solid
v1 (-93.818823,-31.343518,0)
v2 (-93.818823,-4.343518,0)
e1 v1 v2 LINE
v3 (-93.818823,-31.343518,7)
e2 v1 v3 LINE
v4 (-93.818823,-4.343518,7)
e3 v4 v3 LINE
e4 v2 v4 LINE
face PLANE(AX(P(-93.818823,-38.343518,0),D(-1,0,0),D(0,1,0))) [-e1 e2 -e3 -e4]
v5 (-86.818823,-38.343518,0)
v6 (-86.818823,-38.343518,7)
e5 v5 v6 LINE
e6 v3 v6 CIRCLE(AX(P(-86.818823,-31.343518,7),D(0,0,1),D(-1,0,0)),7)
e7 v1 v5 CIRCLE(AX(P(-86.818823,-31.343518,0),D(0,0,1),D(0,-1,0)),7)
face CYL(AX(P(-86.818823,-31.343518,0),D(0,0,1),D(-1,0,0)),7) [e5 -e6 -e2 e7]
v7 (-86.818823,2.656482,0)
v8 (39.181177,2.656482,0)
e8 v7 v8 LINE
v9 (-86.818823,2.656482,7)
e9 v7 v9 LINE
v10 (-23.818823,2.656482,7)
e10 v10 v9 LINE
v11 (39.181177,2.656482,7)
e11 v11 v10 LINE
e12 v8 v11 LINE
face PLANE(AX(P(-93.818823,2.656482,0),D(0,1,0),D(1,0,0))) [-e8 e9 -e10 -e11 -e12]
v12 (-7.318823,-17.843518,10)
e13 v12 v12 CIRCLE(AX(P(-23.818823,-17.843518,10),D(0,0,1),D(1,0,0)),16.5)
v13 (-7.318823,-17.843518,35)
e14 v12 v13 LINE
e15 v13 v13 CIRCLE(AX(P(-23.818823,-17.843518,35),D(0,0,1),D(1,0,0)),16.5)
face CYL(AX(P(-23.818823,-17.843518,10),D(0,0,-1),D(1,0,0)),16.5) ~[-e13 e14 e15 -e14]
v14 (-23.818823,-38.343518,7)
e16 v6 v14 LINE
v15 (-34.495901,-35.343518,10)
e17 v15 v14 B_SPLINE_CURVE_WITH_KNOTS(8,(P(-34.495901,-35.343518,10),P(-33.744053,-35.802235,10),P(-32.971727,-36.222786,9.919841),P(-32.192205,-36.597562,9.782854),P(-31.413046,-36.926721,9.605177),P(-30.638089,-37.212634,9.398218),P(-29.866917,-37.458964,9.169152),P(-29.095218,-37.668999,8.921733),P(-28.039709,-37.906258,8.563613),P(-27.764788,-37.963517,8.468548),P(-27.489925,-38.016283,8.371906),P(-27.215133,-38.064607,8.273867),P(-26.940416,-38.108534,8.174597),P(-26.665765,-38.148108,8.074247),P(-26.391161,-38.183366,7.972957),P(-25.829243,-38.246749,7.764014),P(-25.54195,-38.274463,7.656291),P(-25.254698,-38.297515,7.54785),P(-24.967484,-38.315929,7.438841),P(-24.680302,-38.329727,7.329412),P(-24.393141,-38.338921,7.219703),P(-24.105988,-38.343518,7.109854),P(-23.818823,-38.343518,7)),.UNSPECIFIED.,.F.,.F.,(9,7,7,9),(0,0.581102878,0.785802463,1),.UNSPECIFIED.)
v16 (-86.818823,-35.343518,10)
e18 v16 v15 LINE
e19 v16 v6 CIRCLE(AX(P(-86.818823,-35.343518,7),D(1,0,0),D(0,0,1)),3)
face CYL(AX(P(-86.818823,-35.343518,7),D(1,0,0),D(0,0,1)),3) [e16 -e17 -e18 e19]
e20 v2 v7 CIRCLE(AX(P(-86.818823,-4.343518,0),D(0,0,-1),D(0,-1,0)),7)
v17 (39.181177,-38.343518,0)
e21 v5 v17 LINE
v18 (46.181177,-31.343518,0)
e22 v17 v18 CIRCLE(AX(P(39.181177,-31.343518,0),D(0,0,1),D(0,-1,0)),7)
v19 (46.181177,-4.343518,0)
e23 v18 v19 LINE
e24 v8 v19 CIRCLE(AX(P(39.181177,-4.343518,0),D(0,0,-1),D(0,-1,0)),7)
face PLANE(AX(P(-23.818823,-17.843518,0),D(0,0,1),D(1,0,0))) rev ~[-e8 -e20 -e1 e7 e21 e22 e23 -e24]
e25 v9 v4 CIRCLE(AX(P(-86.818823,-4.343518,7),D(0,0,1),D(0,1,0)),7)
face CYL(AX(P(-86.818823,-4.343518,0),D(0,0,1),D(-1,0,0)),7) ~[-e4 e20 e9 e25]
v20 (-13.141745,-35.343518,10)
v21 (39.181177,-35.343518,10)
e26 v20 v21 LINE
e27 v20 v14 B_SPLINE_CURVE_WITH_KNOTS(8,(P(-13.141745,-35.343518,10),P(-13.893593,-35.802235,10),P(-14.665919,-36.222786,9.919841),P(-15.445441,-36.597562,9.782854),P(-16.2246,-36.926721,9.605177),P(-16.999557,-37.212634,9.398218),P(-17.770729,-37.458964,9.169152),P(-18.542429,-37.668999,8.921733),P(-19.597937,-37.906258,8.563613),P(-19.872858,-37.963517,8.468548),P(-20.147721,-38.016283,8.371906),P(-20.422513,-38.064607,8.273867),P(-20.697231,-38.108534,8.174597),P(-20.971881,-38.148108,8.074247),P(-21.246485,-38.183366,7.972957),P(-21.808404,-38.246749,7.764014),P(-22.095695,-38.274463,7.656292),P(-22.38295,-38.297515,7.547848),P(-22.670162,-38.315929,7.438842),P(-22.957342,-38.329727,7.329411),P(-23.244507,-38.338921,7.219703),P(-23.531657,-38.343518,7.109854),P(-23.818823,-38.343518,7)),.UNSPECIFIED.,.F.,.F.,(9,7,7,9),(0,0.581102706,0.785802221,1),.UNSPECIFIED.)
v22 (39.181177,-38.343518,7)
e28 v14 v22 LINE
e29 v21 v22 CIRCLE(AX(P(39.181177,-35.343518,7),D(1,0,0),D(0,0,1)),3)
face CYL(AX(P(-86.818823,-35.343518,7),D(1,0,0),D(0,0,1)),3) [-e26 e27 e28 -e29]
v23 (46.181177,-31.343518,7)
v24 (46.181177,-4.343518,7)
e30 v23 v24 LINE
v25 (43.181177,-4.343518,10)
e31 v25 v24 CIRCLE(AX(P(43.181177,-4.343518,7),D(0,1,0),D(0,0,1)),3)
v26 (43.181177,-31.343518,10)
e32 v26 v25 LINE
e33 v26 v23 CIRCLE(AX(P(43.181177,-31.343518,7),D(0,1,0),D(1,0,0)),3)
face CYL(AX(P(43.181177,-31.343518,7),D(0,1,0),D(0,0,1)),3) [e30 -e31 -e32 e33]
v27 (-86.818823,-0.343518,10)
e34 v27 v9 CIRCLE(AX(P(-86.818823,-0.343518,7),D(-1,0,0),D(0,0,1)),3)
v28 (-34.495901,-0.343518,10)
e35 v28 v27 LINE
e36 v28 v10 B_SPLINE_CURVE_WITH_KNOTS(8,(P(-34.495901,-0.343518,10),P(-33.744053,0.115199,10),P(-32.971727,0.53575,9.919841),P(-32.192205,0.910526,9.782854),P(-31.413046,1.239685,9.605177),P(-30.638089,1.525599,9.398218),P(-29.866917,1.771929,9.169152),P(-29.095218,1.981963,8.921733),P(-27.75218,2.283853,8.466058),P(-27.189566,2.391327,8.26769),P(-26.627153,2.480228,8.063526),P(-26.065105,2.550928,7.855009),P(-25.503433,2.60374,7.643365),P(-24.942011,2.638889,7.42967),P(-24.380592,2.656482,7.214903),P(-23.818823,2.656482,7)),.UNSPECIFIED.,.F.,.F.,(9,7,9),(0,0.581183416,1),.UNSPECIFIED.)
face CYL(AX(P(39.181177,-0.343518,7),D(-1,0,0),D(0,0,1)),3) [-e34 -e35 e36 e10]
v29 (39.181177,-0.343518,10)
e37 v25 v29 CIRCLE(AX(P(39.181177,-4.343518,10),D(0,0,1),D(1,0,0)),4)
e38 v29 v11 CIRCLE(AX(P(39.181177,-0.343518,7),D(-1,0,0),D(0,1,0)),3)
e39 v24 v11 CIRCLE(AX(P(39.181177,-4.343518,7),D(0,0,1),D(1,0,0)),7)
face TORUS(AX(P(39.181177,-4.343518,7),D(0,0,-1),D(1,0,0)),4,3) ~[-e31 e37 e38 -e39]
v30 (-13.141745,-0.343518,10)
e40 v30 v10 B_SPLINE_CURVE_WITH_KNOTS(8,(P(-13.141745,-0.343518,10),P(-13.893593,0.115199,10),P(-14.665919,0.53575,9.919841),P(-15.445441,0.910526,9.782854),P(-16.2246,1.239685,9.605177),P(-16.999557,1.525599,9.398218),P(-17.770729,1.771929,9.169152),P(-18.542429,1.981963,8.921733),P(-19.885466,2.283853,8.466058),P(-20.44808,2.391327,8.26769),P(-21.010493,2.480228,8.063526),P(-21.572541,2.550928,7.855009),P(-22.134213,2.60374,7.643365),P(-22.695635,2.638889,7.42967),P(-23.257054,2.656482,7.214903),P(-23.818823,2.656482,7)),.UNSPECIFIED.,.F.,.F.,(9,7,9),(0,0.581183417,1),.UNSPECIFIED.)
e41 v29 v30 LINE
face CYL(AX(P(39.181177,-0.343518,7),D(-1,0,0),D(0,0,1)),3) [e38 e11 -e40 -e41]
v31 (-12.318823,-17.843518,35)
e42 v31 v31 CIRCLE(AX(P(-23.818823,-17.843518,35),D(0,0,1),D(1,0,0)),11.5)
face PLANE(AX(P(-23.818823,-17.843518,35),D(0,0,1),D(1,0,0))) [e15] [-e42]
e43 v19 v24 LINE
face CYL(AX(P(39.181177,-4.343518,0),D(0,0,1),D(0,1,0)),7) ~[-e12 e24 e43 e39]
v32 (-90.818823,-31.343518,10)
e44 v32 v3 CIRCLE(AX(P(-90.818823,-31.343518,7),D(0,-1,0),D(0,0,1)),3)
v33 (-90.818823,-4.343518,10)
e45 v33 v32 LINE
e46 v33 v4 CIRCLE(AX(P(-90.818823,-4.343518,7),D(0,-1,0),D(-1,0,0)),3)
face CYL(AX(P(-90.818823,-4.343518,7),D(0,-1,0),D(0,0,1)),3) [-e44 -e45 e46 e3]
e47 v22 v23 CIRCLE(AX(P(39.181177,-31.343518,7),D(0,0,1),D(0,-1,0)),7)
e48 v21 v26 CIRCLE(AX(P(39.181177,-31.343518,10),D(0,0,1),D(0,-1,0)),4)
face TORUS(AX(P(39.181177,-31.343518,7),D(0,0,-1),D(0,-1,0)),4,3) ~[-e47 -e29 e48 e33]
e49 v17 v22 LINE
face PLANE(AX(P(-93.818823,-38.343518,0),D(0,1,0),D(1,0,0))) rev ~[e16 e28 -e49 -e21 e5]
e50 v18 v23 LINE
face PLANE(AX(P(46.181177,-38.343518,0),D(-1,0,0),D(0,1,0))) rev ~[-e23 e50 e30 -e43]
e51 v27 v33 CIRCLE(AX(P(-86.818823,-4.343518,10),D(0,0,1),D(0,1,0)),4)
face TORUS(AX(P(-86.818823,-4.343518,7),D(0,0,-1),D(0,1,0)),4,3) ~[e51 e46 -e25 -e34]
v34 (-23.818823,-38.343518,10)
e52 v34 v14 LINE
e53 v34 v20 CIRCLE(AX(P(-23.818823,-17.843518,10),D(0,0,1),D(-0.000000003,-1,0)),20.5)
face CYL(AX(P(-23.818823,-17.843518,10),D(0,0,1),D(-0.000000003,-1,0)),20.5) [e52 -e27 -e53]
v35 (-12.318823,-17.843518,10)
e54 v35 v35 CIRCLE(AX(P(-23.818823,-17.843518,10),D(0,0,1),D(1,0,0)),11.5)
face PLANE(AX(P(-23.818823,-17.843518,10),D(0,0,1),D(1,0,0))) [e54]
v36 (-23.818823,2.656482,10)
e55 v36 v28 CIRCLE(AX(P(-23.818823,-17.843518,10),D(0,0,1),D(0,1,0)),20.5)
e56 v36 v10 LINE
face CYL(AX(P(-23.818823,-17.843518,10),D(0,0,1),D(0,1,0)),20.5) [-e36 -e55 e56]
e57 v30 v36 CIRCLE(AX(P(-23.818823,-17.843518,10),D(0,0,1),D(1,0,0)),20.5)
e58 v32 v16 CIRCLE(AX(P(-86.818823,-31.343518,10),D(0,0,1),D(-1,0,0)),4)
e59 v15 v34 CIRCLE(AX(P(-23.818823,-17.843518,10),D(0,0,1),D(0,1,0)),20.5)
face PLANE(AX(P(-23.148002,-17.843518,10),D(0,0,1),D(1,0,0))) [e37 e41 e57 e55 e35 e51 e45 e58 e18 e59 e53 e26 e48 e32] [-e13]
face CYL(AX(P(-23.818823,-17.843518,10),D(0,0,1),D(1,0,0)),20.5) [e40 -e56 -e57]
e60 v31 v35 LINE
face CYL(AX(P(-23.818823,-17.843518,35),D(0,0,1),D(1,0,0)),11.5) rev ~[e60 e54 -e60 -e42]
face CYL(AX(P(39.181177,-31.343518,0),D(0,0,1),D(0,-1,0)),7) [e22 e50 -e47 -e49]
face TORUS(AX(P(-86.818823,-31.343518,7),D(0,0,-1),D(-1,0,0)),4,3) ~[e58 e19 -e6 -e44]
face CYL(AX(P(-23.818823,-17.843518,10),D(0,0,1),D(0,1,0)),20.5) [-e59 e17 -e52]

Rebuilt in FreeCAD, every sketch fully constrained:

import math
import FreeCAD as App
import Part
import Sketcher
from FreeCAD import Vector


def edges_at(feature, points):
    """Names of the edges that pass closest to the given points."""
    edges = feature.Shape.Edges
    near = lambda p: min(range(len(edges)), key=lambda i: edges[i].distToShape(Part.Vertex(*p))[0])
    return sorted({f"Edge{near(p) + 1}" for p in points})

doc = App.newDocument("Part")
body = doc.addObject("PartDesign::Body", "Body")

sketch1 = doc.addObject("Sketcher::SketchObject", "Sketch")
body.addObject(sketch1)
sketch1.AttachmentSupport = (doc.XY_Plane, [""])
sketch1.MapMode = "FlatFace"
sketch1.addGeometry([
    Part.LineSegment(Vector(-94, 3, 0), Vector(-94, -38, 0)),
    Part.LineSegment(Vector(-94, -38, 0), Vector(46, -38, 0)),
    Part.LineSegment(Vector(46, -38, 0), Vector(46, 3, 0)),
    Part.LineSegment(Vector(46, 3, 0), Vector(-94, 3, 0)),
], False)
sketch1.addConstraint([
    Sketcher.Constraint("Coincident", 0, 2, 1, 1),
    Sketcher.Constraint("Coincident", 1, 2, 2, 1),
    Sketcher.Constraint("Coincident", 2, 2, 3, 1),
    Sketcher.Constraint("Coincident", 3, 2, 0, 1),
    Sketcher.Constraint("Vertical", 0),
    Sketcher.Constraint("Horizontal", 1),
    Sketcher.Constraint("Vertical", 2),
    Sketcher.Constraint("Horizontal", 3),
    Sketcher.Constraint("DistanceX", 1, 1, 1, 2, 140.0),
    Sketcher.Constraint("DistanceY", 0, 2, 0, 1, 41.0),
    Sketcher.Constraint("DistanceX", 0, 2, -1, 1, 93.818823),
    Sketcher.Constraint("DistanceY", 0, 2, -1, 1, 38.343518),
])
pad1 = doc.addObject("PartDesign::Pad", "Pad")
body.addObject(pad1)
pad1.Profile = sketch1
pad1.Length = 10

sketch2 = doc.addObject("Sketcher::SketchObject", "Sketch001")
body.addObject(sketch2)
sketch2.AttachmentSupport = (doc.XY_Plane, [""])
sketch2.MapMode = "FlatFace"
sketch2.AttachmentOffset = App.Placement(Vector(0, 0, 10), App.Rotation())
sketch2.addGeometry(Part.Circle(Vector(-24, -18, 0), Vector(0, 0, 1), 16), False)
sketch2.addConstraint([
    Sketcher.Constraint("Diameter", 0, 33.0),
    Sketcher.Constraint("DistanceX", 0, 3, -1, 1, 23.818823),
    Sketcher.Constraint("DistanceY", 0, 3, -1, 1, 17.843518),
])
pad2 = doc.addObject("PartDesign::Pad", "Pad001")
body.addObject(pad2)
pad2.Profile = sketch2
pad2.Length = 25

sketch3 = doc.addObject("Sketcher::SketchObject", "Sketch002")
body.addObject(sketch3)
sketch3.AttachmentSupport = (doc.XY_Plane, [""])
sketch3.MapMode = "FlatFace"
sketch3.AttachmentOffset = App.Placement(Vector(0, 0, 35), App.Rotation())
sketch3.addGeometry(Part.Circle(Vector(-24, -18, 0), Vector(0, 0, 1), 12), False)
sketch3.addConstraint([
    Sketcher.Constraint("Diameter", 0, 23.0),
    Sketcher.Constraint("DistanceX", 0, 3, -1, 1, 23.818823),
    Sketcher.Constraint("DistanceY", 0, 3, -1, 1, 17.843518),
])
pocket1 = doc.addObject("PartDesign::Pocket", "Pocket")
body.addObject(pocket1)
pocket1.Profile = sketch3
pocket1.Length = 25
doc.recompute()

fillet = doc.addObject("PartDesign::Fillet", "Fillet")
body.addObject(fillet)
fillet.Base = (pocket1, edges_at(pocket1, [
    (-93.819, -38.344, 5),
    (46.181, -38.344, 5),
    (46.181, 2.656, 5),
    (-93.819, 2.656, 5),
]))
fillet.Radius = 7
doc.recompute()

fillet2 = doc.addObject("PartDesign::Fillet", "Fillet001")
body.addObject(fillet2)
fillet2.Base = (fillet, edges_at(fillet, [(-23.819, -38.344, 10)]))
fillet2.Radius = 3

sketch4 = doc.addObject("Sketcher::SketchObject", "Sketch003")
body.addObject(sketch4)
sketch4.AttachmentSupport = (doc.XY_Plane, [""])
sketch4.MapMode = "FlatFace"
sketch4.AttachmentOffset = App.Placement(Vector(0, 0, 10), App.Rotation())
sketch4.addGeometry([
    Part.ArcOfCircle(Part.Circle(Vector(-24, -18, 0), Vector(0, 0, 1), 20), math.radians(-90), math.radians(0)),
    Part.ArcOfCircle(Part.Circle(Vector(-24, -18, 0), Vector(0, 0, 1), 20), math.radians(0), math.radians(90)),
    Part.ArcOfCircle(Part.Circle(Vector(-24, -18, 0), Vector(0, 0, 1), 20), math.radians(90), math.radians(270)),
], False)
sketch4.addConstraint([
    Sketcher.Constraint("Tangent", 0, 2, 1, 1),
    Sketcher.Constraint("Tangent", 1, 2, 2, 1),
    Sketcher.Constraint("Tangent", 2, 2, 0, 1),
    Sketcher.Constraint("Horizontal", 2, 3, 0, 2),
    Sketcher.Constraint("Vertical", 2, 3, 1, 2),
    Sketcher.Constraint("Vertical", 1, 2, 2, 2),
    Sketcher.Constraint("Radius", 0, 20.5),
    Sketcher.Constraint("DistanceX", 0, 3, -1, 1, 23.818823),
    Sketcher.Constraint("DistanceY", 0, 3, -1, 1, 17.843518),
])
pad3 = doc.addObject("PartDesign::Pad", "Pad002")
body.addObject(pad3)
pad3.Profile = sketch4
pad3.Length = 5
pad3.Reversed = True

doc.recompute()
